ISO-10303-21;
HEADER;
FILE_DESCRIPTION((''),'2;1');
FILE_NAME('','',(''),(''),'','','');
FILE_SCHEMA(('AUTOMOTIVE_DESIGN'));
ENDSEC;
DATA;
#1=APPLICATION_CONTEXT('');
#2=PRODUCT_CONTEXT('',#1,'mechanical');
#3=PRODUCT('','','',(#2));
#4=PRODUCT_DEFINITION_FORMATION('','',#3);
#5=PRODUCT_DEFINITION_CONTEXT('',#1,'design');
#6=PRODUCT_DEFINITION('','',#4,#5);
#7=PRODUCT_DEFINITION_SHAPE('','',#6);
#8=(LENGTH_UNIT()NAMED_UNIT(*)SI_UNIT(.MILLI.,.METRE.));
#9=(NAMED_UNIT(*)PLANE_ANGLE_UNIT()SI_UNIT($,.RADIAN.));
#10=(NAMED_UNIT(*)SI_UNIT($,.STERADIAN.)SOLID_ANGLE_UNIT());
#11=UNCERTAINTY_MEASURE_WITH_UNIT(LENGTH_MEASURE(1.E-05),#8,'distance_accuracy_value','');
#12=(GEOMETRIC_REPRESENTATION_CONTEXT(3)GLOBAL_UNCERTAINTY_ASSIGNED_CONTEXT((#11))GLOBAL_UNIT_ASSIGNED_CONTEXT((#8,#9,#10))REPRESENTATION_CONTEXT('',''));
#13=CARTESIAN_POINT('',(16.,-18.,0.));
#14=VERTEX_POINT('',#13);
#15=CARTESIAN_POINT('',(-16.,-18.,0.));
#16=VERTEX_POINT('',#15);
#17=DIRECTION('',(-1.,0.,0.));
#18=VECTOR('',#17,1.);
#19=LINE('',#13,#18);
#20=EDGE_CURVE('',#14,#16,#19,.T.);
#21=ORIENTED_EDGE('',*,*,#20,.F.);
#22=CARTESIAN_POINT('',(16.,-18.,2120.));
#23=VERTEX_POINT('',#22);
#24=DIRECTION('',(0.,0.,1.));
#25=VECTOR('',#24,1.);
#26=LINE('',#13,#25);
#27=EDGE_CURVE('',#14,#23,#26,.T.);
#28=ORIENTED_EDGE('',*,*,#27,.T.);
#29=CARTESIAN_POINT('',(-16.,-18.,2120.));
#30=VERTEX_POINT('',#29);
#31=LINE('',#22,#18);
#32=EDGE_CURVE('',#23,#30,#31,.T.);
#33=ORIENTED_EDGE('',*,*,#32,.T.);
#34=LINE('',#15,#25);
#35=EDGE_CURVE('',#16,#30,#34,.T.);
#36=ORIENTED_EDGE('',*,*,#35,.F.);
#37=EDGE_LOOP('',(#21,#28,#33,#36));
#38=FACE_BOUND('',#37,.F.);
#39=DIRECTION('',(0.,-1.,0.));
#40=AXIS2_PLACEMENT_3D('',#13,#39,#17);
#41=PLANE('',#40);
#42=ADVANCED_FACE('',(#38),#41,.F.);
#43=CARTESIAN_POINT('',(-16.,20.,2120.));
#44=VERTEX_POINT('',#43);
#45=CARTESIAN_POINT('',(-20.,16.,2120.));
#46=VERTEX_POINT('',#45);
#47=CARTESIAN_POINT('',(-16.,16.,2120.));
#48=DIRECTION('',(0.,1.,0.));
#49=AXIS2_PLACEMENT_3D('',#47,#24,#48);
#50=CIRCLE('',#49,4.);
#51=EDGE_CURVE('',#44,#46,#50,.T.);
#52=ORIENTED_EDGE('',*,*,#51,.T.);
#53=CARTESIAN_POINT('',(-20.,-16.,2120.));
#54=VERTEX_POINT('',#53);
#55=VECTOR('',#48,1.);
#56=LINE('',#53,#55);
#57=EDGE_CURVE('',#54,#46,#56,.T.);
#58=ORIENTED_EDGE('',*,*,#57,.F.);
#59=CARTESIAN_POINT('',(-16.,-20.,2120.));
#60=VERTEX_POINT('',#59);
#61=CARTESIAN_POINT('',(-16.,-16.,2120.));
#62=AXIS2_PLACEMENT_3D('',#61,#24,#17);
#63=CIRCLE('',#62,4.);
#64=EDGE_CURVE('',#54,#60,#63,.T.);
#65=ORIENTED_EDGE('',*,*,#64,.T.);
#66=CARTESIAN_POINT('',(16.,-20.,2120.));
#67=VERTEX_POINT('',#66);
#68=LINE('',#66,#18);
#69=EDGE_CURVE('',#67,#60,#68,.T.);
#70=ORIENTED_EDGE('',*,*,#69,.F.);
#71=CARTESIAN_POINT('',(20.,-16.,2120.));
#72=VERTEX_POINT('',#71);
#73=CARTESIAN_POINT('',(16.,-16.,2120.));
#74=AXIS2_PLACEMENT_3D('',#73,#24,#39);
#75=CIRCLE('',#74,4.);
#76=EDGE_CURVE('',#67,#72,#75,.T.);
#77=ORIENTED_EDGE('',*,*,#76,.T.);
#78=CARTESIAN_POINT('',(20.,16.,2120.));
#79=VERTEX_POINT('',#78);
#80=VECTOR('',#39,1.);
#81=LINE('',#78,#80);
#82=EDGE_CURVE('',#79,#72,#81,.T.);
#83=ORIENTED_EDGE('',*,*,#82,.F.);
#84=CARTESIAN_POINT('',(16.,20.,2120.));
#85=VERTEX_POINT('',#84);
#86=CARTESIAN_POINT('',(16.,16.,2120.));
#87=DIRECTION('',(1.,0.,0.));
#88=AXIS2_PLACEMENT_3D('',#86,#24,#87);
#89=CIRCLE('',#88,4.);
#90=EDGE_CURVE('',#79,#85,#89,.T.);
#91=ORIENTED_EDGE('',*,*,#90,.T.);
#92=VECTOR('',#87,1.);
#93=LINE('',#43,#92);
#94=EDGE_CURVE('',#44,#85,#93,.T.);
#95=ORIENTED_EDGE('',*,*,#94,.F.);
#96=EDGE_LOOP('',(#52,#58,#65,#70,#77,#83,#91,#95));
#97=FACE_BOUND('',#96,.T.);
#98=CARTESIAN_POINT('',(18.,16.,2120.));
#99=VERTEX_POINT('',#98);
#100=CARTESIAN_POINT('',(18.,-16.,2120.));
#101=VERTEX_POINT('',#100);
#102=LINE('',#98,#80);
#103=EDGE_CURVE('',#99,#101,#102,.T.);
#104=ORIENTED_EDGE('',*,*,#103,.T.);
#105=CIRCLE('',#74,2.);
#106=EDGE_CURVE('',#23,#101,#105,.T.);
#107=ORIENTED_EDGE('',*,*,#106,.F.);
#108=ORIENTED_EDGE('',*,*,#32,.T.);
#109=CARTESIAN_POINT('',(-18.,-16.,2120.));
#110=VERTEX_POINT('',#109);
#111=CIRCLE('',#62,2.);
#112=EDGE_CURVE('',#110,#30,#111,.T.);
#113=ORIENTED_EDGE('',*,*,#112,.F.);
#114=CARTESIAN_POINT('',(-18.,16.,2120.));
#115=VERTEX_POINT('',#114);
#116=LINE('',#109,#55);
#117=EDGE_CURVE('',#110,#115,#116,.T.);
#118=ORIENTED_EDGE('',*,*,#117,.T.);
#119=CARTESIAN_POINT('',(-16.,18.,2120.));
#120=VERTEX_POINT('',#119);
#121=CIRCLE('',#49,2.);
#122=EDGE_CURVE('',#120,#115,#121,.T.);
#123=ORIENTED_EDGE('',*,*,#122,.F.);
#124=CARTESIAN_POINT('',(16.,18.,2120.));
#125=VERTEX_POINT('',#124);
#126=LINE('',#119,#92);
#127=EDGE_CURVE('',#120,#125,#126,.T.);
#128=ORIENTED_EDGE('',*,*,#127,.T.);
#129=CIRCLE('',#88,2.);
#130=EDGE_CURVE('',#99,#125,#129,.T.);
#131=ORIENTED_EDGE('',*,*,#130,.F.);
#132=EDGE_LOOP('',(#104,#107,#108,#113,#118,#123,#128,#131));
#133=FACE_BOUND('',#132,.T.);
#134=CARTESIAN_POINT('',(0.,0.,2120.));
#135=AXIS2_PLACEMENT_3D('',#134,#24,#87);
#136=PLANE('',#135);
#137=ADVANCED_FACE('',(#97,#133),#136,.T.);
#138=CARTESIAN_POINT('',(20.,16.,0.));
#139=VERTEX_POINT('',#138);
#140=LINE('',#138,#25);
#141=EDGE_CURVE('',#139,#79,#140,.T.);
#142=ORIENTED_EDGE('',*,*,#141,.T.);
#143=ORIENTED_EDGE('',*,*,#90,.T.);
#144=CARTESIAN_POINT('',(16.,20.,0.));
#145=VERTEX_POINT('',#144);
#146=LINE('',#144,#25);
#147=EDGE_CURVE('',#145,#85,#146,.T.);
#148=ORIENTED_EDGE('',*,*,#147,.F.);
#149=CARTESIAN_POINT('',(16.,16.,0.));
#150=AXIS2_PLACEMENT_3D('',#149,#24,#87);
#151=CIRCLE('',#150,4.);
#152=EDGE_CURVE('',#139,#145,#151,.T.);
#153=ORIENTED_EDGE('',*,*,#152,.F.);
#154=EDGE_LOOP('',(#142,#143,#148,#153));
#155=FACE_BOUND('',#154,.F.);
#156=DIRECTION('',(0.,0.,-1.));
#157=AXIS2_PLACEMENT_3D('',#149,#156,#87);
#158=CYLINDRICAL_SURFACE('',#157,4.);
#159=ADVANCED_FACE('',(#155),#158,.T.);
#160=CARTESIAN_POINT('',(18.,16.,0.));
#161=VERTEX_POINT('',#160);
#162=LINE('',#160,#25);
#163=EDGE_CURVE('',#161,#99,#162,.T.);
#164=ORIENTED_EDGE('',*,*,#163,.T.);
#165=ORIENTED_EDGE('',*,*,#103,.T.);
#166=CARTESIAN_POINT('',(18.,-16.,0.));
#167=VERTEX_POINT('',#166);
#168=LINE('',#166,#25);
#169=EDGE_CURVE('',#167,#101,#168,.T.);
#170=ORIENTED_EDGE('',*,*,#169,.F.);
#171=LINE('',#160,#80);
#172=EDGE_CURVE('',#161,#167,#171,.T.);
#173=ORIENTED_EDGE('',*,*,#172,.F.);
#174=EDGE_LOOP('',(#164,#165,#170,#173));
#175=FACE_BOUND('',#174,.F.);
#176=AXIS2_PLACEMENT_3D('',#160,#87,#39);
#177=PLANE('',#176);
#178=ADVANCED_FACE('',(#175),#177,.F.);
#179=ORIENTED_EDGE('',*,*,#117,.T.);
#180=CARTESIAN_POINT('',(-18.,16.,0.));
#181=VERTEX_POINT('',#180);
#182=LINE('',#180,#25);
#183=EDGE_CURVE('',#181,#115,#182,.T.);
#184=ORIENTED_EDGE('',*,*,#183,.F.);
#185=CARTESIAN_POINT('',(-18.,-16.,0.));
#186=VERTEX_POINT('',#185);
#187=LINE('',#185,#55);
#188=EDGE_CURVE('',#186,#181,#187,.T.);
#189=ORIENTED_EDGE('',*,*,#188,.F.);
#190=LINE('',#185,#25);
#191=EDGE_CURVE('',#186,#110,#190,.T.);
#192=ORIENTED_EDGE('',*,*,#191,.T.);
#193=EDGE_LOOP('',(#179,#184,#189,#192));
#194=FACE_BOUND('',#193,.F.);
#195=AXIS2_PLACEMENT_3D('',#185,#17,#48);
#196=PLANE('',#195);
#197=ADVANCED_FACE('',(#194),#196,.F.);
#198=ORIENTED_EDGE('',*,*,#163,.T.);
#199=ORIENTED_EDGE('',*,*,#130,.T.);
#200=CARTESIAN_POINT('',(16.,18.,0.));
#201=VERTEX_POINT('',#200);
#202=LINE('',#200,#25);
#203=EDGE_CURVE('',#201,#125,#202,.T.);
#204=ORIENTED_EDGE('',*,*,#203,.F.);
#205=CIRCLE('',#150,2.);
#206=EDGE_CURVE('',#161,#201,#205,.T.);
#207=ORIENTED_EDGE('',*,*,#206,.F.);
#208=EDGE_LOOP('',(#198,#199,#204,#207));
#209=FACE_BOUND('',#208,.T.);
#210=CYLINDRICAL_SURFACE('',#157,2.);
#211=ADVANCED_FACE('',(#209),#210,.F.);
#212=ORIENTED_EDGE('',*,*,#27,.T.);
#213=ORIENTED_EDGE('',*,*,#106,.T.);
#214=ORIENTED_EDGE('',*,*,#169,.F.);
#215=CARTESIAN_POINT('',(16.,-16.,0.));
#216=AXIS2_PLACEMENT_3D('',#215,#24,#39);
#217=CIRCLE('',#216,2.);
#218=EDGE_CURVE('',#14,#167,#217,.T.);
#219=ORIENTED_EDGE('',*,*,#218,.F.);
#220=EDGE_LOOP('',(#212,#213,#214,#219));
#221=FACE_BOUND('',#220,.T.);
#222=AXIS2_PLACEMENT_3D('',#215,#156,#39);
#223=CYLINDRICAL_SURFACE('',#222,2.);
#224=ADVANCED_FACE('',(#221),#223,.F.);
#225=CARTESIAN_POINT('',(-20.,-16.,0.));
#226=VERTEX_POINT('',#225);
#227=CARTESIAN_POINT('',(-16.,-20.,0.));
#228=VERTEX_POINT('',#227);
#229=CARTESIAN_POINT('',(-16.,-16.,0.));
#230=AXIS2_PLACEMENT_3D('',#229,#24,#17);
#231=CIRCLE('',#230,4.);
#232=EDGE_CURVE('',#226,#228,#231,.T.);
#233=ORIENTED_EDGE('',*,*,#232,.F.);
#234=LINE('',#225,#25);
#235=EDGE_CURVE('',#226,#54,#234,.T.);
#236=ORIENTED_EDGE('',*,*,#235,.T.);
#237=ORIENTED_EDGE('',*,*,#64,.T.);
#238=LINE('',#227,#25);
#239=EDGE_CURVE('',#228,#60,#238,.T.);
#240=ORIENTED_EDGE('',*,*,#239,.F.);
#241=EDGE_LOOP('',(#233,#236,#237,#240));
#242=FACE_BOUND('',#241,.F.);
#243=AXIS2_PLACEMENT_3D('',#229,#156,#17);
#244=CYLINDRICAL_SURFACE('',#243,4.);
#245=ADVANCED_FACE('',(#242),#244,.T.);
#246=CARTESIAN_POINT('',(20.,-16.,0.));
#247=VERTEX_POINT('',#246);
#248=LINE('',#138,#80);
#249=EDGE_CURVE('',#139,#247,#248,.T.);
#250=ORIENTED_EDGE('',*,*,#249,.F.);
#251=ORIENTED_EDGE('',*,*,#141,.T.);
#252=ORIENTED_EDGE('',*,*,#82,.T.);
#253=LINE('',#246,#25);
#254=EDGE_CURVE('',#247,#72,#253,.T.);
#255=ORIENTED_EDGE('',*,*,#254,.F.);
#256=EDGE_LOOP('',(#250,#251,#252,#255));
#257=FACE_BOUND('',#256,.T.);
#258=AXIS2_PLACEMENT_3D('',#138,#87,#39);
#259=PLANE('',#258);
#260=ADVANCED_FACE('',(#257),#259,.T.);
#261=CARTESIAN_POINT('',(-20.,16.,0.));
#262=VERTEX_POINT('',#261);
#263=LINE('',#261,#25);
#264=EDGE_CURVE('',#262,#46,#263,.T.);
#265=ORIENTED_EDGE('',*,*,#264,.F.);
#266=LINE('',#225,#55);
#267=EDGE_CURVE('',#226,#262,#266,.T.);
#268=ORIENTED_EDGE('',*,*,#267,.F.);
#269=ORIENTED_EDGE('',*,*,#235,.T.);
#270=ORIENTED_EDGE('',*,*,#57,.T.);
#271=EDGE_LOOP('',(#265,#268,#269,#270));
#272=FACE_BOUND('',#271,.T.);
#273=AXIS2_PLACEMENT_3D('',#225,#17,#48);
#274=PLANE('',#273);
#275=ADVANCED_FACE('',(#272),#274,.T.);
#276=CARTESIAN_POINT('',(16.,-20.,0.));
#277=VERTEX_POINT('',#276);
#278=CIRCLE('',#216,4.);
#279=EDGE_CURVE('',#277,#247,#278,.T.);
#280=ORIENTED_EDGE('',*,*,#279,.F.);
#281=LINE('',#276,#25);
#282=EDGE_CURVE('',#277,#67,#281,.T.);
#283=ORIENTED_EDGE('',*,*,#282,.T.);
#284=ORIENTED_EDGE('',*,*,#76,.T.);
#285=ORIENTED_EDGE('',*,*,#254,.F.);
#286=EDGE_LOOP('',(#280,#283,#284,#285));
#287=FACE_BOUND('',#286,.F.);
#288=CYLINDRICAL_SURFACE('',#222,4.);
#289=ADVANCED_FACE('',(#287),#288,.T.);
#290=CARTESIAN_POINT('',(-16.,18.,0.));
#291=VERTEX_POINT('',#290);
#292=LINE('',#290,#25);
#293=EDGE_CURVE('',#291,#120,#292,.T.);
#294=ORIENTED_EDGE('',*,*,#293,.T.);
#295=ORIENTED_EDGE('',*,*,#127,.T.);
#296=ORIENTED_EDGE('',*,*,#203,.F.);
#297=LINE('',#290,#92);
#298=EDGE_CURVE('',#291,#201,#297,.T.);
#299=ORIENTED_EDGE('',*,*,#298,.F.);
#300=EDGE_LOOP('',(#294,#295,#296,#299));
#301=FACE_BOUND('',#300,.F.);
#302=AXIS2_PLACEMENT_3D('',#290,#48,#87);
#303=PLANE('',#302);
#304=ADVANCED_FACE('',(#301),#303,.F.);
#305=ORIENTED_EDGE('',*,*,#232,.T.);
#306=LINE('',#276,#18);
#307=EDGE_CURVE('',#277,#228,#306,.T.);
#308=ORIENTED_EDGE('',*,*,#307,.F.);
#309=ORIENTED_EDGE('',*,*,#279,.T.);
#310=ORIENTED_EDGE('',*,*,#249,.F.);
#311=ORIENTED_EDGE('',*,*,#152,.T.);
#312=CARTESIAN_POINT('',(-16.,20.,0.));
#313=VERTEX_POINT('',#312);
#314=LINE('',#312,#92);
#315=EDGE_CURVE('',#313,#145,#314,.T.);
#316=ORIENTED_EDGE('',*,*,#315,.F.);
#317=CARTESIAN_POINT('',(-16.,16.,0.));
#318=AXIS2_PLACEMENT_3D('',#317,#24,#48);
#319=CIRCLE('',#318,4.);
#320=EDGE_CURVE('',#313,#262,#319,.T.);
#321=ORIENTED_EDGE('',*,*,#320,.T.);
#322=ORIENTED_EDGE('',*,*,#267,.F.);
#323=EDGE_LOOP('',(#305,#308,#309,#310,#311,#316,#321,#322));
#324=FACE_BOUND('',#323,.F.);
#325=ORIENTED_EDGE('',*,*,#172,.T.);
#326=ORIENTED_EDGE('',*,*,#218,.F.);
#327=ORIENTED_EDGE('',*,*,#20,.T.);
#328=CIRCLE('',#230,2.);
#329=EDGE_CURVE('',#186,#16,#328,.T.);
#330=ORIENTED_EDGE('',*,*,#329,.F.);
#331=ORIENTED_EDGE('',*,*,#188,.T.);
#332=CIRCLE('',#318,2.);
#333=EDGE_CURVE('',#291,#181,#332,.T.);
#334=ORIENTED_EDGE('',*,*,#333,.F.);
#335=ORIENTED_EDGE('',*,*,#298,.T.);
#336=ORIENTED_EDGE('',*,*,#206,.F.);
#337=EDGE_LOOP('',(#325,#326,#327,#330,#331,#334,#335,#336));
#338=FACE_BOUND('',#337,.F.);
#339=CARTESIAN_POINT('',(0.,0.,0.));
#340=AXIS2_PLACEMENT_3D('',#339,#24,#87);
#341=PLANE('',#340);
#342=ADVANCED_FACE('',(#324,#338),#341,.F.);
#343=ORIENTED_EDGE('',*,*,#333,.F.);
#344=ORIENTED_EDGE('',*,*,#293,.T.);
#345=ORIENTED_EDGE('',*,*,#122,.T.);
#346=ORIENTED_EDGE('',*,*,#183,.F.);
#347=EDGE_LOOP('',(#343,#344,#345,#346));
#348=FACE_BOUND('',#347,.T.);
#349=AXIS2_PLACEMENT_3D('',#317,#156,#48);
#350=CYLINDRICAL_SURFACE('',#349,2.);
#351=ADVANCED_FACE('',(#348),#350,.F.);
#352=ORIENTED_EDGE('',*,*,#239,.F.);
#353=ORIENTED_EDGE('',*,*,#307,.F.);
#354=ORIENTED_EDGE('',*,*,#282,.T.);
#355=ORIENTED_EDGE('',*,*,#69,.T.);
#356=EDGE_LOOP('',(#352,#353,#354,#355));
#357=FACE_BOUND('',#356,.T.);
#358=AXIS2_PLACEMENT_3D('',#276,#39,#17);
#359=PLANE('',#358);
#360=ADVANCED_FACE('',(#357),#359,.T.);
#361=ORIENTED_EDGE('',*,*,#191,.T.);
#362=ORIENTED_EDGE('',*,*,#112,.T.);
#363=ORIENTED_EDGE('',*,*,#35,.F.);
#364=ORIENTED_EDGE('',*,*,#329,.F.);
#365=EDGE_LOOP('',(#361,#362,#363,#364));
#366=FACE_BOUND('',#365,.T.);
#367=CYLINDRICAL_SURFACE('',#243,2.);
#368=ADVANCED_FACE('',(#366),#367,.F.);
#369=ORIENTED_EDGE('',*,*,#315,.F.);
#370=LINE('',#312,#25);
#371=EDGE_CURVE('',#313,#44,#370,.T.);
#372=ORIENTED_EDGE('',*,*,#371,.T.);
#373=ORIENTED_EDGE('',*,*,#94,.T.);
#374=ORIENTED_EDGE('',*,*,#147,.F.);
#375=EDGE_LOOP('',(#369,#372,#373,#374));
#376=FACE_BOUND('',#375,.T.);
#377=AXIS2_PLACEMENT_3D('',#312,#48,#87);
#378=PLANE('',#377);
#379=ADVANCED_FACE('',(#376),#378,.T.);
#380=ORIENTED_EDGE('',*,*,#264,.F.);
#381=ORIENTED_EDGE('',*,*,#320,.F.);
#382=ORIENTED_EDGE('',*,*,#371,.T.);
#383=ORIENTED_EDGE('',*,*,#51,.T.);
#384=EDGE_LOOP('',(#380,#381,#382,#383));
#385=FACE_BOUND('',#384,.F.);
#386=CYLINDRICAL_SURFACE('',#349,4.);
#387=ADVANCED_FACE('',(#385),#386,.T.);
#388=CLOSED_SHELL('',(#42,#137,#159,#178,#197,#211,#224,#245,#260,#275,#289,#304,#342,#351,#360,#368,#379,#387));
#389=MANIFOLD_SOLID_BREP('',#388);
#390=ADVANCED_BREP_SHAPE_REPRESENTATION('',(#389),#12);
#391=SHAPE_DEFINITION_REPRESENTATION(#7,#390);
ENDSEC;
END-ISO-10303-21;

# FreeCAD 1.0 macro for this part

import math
import FreeCAD as App
import Part
import Sketcher
Q = App.Units.Quantity

doc = App.newDocument("Part")
body = doc.addObject("PartDesign::Body", "Body")

sketch1 = doc.addObject("Sketcher::SketchObject", "Sketch")
body.addObject(sketch1)
sketch1.AttachmentSupport = (doc.XY_Plane, [""])
sketch1.MapMode = "FlatFace"
sketch1.addGeometry([
    Part.LineSegment(App.Vector(-20, 16, 0), App.Vector(-20, -16, 0)),
    Part.ArcOfCircle(Part.Circle(App.Vector(-16, -16, 0), App.Vector(0, 0, 1), 4), math.radians(180), math.radians(270)),
    Part.LineSegment(App.Vector(-16, -20, 0), App.Vector(16, -20, 0)),
    Part.ArcOfCircle(Part.Circle(App.Vector(16, -16, 0), App.Vector(0, 0, 1), 4), math.radians(-90), math.radians(0)),
    Part.LineSegment(App.Vector(20, -16, 0), App.Vector(20, 16, 0)),
    Part.ArcOfCircle(Part.Circle(App.Vector(16, 16, 0), App.Vector(0, 0, 1), 4), math.radians(0), math.radians(90)),
    Part.LineSegment(App.Vector(16, 20, 0), App.Vector(-16, 20, 0)),
    Part.ArcOfCircle(Part.Circle(App.Vector(-16, 16, 0), App.Vector(0, 0, 1), 4), math.radians(90), math.radians(180)),
    Part.ArcOfCircle(Part.Circle(App.Vector(-16, 16, 0), App.Vector(0, 0, 1), 2), math.radians(90), math.radians(180)),
    Part.LineSegment(App.Vector(-16, 18, 0), App.Vector(16, 18, 0)),
    Part.ArcOfCircle(Part.Circle(App.Vector(16, 16, 0), App.Vector(0, 0, 1), 2), math.radians(0), math.radians(90)),
    Part.LineSegment(App.Vector(18, 16, 0), App.Vector(18, -16, 0)),
    Part.ArcOfCircle(Part.Circle(App.Vector(16, -16, 0), App.Vector(0, 0, 1), 2), math.radians(-90), math.radians(0)),
    Part.LineSegment(App.Vector(16, -18, 0), App.Vector(-16, -18, 0)),
    Part.ArcOfCircle(Part.Circle(App.Vector(-16, -16, 0), App.Vector(0, 0, 1), 2), math.radians(180), math.radians(270)),
    Part.LineSegment(App.Vector(-18, -16, 0), App.Vector(-18, 16, 0)),
], False)
sketch1.addConstraint([
    Sketcher.Constraint("Tangent", 0, 2, 1, 1),
    Sketcher.Constraint("Tangent", 1, 2, 2, 1),
    Sketcher.Constraint("Tangent", 2, 2, 3, 1),
    Sketcher.Constraint("Tangent", 3, 2, 4, 1),
    Sketcher.Constraint("Tangent", 4, 2, 5, 1),
    Sketcher.Constraint("Tangent", 5, 2, 6, 1),
    Sketcher.Constraint("Tangent", 6, 2, 7, 1),
    Sketcher.Constraint("Tangent", 7, 2, 0, 1),
    Sketcher.Constraint("Tangent", 8, 1, 9, 1),
    Sketcher.Constraint("Tangent", 9, 2, 10, 2),
    Sketcher.Constraint("Tangent", 10, 1, 11, 1),
    Sketcher.Constraint("Tangent", 11, 2, 12, 2),
    Sketcher.Constraint("Tangent", 12, 1, 13, 1),
    Sketcher.Constraint("Tangent", 13, 2, 14, 2),
    Sketcher.Constraint("Tangent", 14, 1, 15, 1),
    Sketcher.Constraint("Tangent", 15, 2, 8, 2),
    Sketcher.Constraint("Vertical", 0),
    Sketcher.Constraint("Horizontal", 2),
    Sketcher.Constraint("Vertical", 4),
    Sketcher.Constraint("Horizontal", 6),
    Sketcher.Constraint("Horizontal", 9),
    Sketcher.Constraint("Vertical", 11),
    Sketcher.Constraint("Horizontal", 13),
    Sketcher.Constraint("Vertical", 15),
    Sketcher.Constraint("Coincident", 8, 3, 7, 3),
    Sketcher.Constraint("Coincident", 10, 3, 5, 3),
    Sketcher.Constraint("Coincident", 12, 3, 3, 3),
    Sketcher.Constraint("Equal", 1, 3),
    Sketcher.Constraint("Equal", 3, 5),
    Sketcher.Constraint("Equal", 5, 7),
    Sketcher.Constraint("Equal", 12, 14),
    Sketcher.Constraint("Symmetric", 1, 3, 5, 3, -1, 1),
    Sketcher.Constraint("Equal", 13, 0),
    Sketcher.Constraint("Radius", 1, Q("4 mm")),
    Sketcher.Constraint("Radius", 8, Q("2 mm")),
    Sketcher.Constraint("DistanceX", 0, 2, -1, 1, Q("20 mm")),
])
pad1 = doc.addObject("PartDesign::Pad", "Pad")
body.addObject(pad1)
pad1.Profile = sketch1
pad1.Length = 2120

doc.recompute()
